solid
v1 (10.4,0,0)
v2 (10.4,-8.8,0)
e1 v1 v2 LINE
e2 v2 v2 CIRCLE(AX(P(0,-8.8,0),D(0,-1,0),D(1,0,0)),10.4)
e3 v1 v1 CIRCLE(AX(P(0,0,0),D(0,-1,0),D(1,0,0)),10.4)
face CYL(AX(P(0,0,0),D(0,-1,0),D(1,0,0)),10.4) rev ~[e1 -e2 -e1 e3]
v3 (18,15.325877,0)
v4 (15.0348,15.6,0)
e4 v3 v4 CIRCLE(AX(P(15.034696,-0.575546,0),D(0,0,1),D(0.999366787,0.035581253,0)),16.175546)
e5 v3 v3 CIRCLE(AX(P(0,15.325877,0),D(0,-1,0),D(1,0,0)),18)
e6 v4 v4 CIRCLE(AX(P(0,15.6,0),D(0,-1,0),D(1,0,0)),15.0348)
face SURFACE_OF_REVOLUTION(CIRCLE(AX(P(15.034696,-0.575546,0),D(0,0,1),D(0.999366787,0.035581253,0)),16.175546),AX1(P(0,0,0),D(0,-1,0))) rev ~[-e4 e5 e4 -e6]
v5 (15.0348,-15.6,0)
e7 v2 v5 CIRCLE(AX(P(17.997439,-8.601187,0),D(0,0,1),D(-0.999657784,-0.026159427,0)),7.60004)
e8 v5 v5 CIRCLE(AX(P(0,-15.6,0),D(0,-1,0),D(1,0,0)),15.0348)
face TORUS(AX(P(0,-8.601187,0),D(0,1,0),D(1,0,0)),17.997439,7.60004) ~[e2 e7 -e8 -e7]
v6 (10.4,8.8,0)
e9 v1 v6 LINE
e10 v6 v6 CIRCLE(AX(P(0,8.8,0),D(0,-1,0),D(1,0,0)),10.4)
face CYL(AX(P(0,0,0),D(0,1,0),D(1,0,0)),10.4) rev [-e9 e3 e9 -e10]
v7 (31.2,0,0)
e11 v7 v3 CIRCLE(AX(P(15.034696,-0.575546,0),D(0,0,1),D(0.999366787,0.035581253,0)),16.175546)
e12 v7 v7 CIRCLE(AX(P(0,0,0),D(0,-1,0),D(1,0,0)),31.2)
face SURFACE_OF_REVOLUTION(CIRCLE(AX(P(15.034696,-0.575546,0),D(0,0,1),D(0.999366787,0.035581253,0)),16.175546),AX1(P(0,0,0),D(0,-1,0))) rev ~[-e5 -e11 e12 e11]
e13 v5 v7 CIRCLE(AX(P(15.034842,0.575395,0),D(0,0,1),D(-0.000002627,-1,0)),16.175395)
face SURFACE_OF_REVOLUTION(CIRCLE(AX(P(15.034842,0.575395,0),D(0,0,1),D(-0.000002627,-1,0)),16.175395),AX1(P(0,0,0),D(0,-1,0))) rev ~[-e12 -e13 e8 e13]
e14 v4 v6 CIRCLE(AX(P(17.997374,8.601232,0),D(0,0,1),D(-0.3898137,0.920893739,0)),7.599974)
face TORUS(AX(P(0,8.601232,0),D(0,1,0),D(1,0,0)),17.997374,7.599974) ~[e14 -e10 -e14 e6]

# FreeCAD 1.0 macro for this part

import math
import FreeCAD as App
import Part
import Sketcher

V = App.Vector

doc = App.newDocument("Part")
body = doc.addObject("PartDesign::Body", "Body")

# Sketch on XY plane
sketch1 = body.newObject("Sketcher::SketchObject", "Sketch")
sketch1.AttachmentSupport = (doc.getObject("XY_Plane"), [""])
sketch1.MapMode = "FlatFace"
sketch1.addGeometry(Part.LineSegment(V(10, 9, 0), V(10, -9, 0)), False)
sketch1.addGeometry(Part.ArcOfCircle(Part.Circle(V(18, -9, 0), V(0, 0, 1), 8), math.radians(-179), math.radians(-113)), False)
sketch1.addGeometry(Part.ArcOfCircle(Part.Circle(V(15, 1, 0), V(0, 0, 1), 16), math.radians(-90), math.radians(-2)), False)
sketch1.addGeometry(Part.ArcOfCircle(Part.Circle(V(15, -1, 0), V(0, 0, 1), 16), math.radians(2), math.radians(90)), False)
sketch1.addGeometry(Part.ArcOfCircle(Part.Circle(V(18, 9, 0), V(0, 0, 1), 8), math.radians(113), math.radians(179)), False)
sketch1.addConstraint(Sketcher.Constraint("Coincident", 0, 2, 1, 1))
sketch1.addConstraint(Sketcher.Constraint("Coincident", 1, 2, 2, 1))
sketch1.addConstraint(Sketcher.Constraint("Coincident", 2, 2, 3, 1))
sketch1.addConstraint(Sketcher.Constraint("Coincident", 3, 2, 4, 1))
sketch1.addConstraint(Sketcher.Constraint("Coincident", 4, 2, 0, 1))
sketch1.addConstraint(Sketcher.Constraint("Vertical", 0))
sketch1.addConstraint(Sketcher.Constraint("Equal", 2, 3))
sketch1.addConstraint(Sketcher.Constraint("Equal", 1, 4))
sketch1.addConstraint(Sketcher.Constraint("Symmetric", 2, 3, 3, 3, -1))
sketch1.addConstraint(Sketcher.Constraint("Symmetric", 1, 3, 4, 3, -1))
sketch1.addConstraint(Sketcher.Constraint("Vertical", 3, 3, 1, 2))
sketch1.addConstraint(Sketcher.Constraint("DistanceX", -1, 1, 0, 2, 10.4))
sketch1.addConstraint(Sketcher.Constraint("DistanceY", 0, 2, -1, 1, 8.8))
sketch1.addConstraint(Sketcher.Constraint("DistanceY", 1, 2, -1, 1, 15.6))
sketch1.addConstraint(Sketcher.Constraint("DistanceX", -1, 1, 2, 2, 31.2))
sketch1.addConstraint(Sketcher.Constraint("Radius", 1, 7.6))
sketch1.addConstraint(Sketcher.Constraint("Radius", 2, 16.1755))
revolution = body.newObject("PartDesign::Revolution", "Revolution")
revolution.Profile = sketch1
revolution.ReferenceAxis = (sketch1, ["V_Axis"])
revolution.Angle = 360

doc.recompute()
